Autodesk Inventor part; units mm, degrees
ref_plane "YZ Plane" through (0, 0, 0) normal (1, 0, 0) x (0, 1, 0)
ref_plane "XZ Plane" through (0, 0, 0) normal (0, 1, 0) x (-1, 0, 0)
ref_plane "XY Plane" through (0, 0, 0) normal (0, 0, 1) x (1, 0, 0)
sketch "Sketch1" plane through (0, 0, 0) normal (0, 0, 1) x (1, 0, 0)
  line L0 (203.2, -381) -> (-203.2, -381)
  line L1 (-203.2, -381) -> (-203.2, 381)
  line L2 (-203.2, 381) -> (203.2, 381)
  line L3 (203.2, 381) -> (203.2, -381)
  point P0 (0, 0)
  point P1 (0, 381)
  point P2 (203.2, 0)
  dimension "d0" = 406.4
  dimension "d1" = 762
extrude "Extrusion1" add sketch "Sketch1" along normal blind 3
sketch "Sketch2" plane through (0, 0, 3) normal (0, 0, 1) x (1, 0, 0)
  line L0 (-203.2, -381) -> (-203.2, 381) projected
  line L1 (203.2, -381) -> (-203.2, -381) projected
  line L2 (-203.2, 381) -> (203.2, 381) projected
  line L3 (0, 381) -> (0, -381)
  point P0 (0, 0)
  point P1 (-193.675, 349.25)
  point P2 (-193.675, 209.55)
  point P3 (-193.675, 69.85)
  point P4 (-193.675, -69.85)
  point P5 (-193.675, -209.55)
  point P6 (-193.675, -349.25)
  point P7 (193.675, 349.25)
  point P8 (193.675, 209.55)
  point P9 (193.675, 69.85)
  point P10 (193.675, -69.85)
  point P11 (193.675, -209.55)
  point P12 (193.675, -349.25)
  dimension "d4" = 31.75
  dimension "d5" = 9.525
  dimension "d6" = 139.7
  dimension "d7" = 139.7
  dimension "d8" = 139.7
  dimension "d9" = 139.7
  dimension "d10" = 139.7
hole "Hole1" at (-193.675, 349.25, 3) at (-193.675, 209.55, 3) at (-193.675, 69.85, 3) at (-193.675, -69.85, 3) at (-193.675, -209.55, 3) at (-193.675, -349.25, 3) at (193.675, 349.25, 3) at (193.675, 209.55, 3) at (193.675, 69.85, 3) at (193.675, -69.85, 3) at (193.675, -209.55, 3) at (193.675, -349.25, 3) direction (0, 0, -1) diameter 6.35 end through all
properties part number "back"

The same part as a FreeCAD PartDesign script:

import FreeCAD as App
import Part
import Sketcher

V = App.Vector
Q = App.Units.Quantity

doc = App.newDocument("Part")
params = doc.addObject("Spreadsheet::Sheet", "Params")
for row, (alias, value) in enumerate([
    ("sketch1_width", "16 in"),
    ("sketch1_height", "30 in"),
    ("pad1_length", "0.1181102 in"),
    ("sketch2_diameter", "0.25 in"),
    ("hole_diameter", "0.25 in"),
], start=1):
    params.set(f"A{row}", alias)
    params.set(f"B{row}", "=" + value)
    params.setAlias(f"B{row}", alias)

body = doc.addObject("PartDesign::Body", "Body")

# Sketch on XY plane
sketch1 = doc.addObject("Sketcher::SketchObject", "Sketch")
body.addObject(sketch1)
sketch1.AttachmentSupport = (doc.XY_Plane, [""])
sketch1.MapMode = "FlatFace"
sketch1.addGeometry([
    Part.LineSegment(V(-203.2, -381, 0), V(203.2, -381, 0)),
    Part.LineSegment(V(203.2, -381, 0), V(203.2, 381, 0)),
    Part.LineSegment(V(203.2, 381, 0), V(-203.2, 381, 0)),
    Part.LineSegment(V(-203.2, 381, 0), V(-203.2, -381, 0)),
], False)
sketch1.addConstraint([
    Sketcher.Constraint("Coincident", 0, 2, 1, 1),
    Sketcher.Constraint("Coincident", 1, 2, 2, 1),
    Sketcher.Constraint("Coincident", 2, 2, 3, 1),
    Sketcher.Constraint("Coincident", 3, 2, 0, 1),
    Sketcher.Constraint("Horizontal", 0),
    Sketcher.Constraint("Vertical", 1),
    Sketcher.Constraint("Horizontal", 2),
    Sketcher.Constraint("Vertical", 3),
    Sketcher.Constraint("Symmetric", 0, 2, 2, 2, -1, 1),
    Sketcher.Constraint("DistanceX", 0, 1, 0, 2, Q("16 in")),
    Sketcher.Constraint("DistanceY", 1, 1, 1, 2, Q("30 in")),
])
sketch1.setExpression("Constraints[9]", "Params.sketch1_width")
sketch1.setExpression("Constraints[10]", "Params.sketch1_height")
pad1 = doc.addObject("PartDesign::Pad", "Pad")
body.addObject(pad1)
pad1.Profile = sketch1
pad1.setExpression("Length", "Params.pad1_length")

# Sketch on XY plane
sketch2 = doc.addObject("Sketcher::SketchObject", "Sketch001")
body.addObject(sketch2)
sketch2.AttachmentSupport = (doc.XY_Plane, [""])
sketch2.MapMode = "FlatFace"
sketch2.AttachmentOffset = App.Placement(V(0, 0, 0.1181102 * 25.4), App.Rotation())
sketch2.addGeometry([
    Part.Circle(V(-193.675, 349.25, 0), V(0, 0, 1), 3.175),  # 0
    Part.Circle(V(-193.675, 209.55, 0), V(0, 0, 1), 3.175),  # 1
    Part.Circle(V(-193.675, 69.85, 0), V(0, 0, 1), 3.175),  # 2
    Part.Circle(V(-193.675, -69.85, 0), V(0, 0, 1), 3.175),  # 3
    Part.Circle(V(-193.675, -209.55, 0), V(0, 0, 1), 3.175),  # 4
    Part.Circle(V(-193.675, -349.25, 0), V(0, 0, 1), 3.175),  # 5
    Part.Circle(V(193.675, 349.25, 0), V(0, 0, 1), 3.175),  # 6
    Part.Circle(V(193.675, 209.55, 0), V(0, 0, 1), 3.175),  # 7
    Part.Circle(V(193.675, 69.85, 0), V(0, 0, 1), 3.175),  # 8
    Part.Circle(V(193.675, -69.85, 0), V(0, 0, 1), 3.175),  # 9
    Part.Circle(V(193.675, -209.55, 0), V(0, 0, 1), 3.175),  # 10
    Part.Circle(V(193.675, -349.25, 0), V(0, 0, 1), 3.175),  # 11
], False)
sketch2.addConstraint([
    Sketcher.Constraint("Equal", 0, 1),
    Sketcher.Constraint("Equal", 1, 2),
    Sketcher.Constraint("Equal", 2, 3),
    Sketcher.Constraint("Equal", 3, 4),
    Sketcher.Constraint("Equal", 4, 5),
    Sketcher.Constraint("Equal", 5, 6),
    Sketcher.Constraint("Equal", 6, 7),
    Sketcher.Constraint("Equal", 7, 8),
    Sketcher.Constraint("Equal", 8, 9),
    Sketcher.Constraint("Equal", 9, 10),
    Sketcher.Constraint("Equal", 10, 11),
    Sketcher.Constraint("Symmetric", 5, 3, 6, 3, -1, 1),
    Sketcher.Constraint("Symmetric", 4, 3, 7, 3, -1, 1),
    Sketcher.Constraint("Symmetric", 3, 3, 8, 3, -1, 1),
    Sketcher.Constraint("Symmetric", 2, 3, 9, 3, -1, 1),
    Sketcher.Constraint("Symmetric", 1, 3, 10, 3, -1, 1),
    Sketcher.Constraint("Symmetric", 0, 3, 11, 3, -1, 1),
    Sketcher.Constraint("Symmetric", 0, 3, 6, 3, -2),
    Sketcher.Constraint("Symmetric", 1, 3, 7, 3, -2),
    Sketcher.Constraint("Symmetric", 2, 3, 8, 3, -2),
    Sketcher.Constraint("Vertical", 0, 3, 1, 3),
    Sketcher.Constraint("Vertical", 1, 3, 2, 3),
    Sketcher.Constraint("Diameter", 0, Q("0.25 in")),
    Sketcher.Constraint("DistanceY", 2, 3, 0, 3, Q("11 in")),
    Sketcher.Constraint("DistanceY", 3, 3, 1, 3, Q("11 in")),
    Sketcher.Constraint("DistanceY", 1, 3, 0, 3, Q("5.5 in")),
    Sketcher.Constraint("DistanceX", 0, 3, 6, 3, Q("15.25 in")),
])
sketch2.setExpression("Constraints[22]", "Params.sketch2_diameter")
doc.recompute()
hole = doc.addObject("PartDesign::Hole", "Hole")
body.addObject(hole)
hole.Profile = sketch2
hole.ThreadType = "None"
hole.setExpression("Diameter", "Params.hole_diameter")
hole.DepthType = "ThroughAll"

doc.recompute()
